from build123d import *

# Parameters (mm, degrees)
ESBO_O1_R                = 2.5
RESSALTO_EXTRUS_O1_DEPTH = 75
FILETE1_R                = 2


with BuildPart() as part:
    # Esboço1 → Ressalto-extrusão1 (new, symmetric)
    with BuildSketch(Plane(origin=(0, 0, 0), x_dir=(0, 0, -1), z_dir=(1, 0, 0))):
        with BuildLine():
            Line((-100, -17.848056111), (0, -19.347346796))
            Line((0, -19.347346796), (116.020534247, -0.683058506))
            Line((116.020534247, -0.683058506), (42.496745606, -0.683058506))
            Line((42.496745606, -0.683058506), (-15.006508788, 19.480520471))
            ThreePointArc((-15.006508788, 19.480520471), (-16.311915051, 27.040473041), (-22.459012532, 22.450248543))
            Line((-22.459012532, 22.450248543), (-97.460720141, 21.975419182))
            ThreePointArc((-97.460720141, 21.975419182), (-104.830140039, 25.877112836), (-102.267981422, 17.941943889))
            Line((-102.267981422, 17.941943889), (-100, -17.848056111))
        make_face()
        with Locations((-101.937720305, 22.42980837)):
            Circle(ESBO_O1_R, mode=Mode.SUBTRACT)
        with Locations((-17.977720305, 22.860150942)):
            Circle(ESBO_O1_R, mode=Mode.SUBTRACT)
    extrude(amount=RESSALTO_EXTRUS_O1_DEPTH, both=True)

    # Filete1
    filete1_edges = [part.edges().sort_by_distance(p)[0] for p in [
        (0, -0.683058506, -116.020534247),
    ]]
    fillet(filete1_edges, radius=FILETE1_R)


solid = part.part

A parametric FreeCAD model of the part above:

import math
import FreeCAD as App
import Part
import Sketcher
from FreeCAD import Vector


def edges_at(feature, points):
    """Names of the edges that pass closest to the given points."""
    edges = feature.Shape.Edges
    near = lambda p: min(range(len(edges)), key=lambda i: edges[i].distToShape(Part.Vertex(*p))[0])
    return sorted({f"Edge{near(p) + 1}" for p in points})

doc = App.newDocument("Part")
body = doc.addObject("PartDesign::Body", "Body")

# Sketch on YZ plane
sketch1 = doc.addObject("Sketcher::SketchObject", "Sketch")
body.addObject(sketch1)
sketch1.AttachmentSupport = (doc.YZ_Plane, [""])
sketch1.MapMode = "FlatFace"
sketch1.addGeometry(Part.LineSegment(Vector(-17.848056, 100, 0), Vector(-19.347347, 0, 0)), False)
sketch1.addGeometry(Part.LineSegment(Vector(-19.347347, 0, 0), Vector(-0.683059, -116.020534, 0)), False)
sketch1.addGeometry(Part.LineSegment(Vector(-0.683059, -116.020534, 0), Vector(-0.683059, -42.496746, 0)), False)
sketch1.addGeometry(Part.LineSegment(Vector(-0.683059, -42.496746, 0), Vector(19.48052, 15.006509, 0)), False)
sketch1.addGeometry(Part.ArcOfCircle(Part.Circle(Vector(22.860151, 17.97772, 0), Vector(0, 0, 1), 4.5), math.radians(-138.679591), math.radians(95.226284)), False)
sketch1.addGeometry(Part.LineSegment(Vector(22.450249, 22.459013, 0), Vector(21.975419, 97.46072, 0)), False)
sketch1.addGeometry(Part.ArcOfCircle(Part.Circle(Vector(22.429808, 101.93772, 0), Vector(0, 0, 1), 4.5), math.radians(-95.79534), math.radians(175.791201)), False)
sketch1.addGeometry(Part.LineSegment(Vector(17.941944, 102.267981, 0), Vector(-17.848056, 100, 0)), False)
sketch1.addGeometry(Part.Circle(Vector(22.429808, 101.93772, 0), Vector(0, 0, 1), 2.5), False)
sketch1.addGeometry(Part.Circle(Vector(22.860151, 17.97772, 0), Vector(0, 0, 1), 2.5), False)
sketch1.addConstraint(Sketcher.Constraint("Coincident", 0, 2, 1, 1))
sketch1.addConstraint(Sketcher.Constraint("Coincident", 1, 2, 2, 1))
sketch1.addConstraint(Sketcher.Constraint("Coincident", 2, 2, 3, 1))
sketch1.addConstraint(Sketcher.Constraint("Coincident", 3, 2, 4, 1))
sketch1.addConstraint(Sketcher.Constraint("Coincident", 4, 2, 5, 1))
sketch1.addConstraint(Sketcher.Constraint("Coincident", 5, 2, 6, 1))
sketch1.addConstraint(Sketcher.Constraint("Coincident", 6, 2, 7, 1))
sketch1.addConstraint(Sketcher.Constraint("Coincident", 7, 2, 0, 1))
sketch1.addConstraint(Sketcher.Constraint("Vertical", 2))
sketch1.addConstraint(Sketcher.Constraint("Coincident", 8, 3, 6, 3))
sketch1.addConstraint(Sketcher.Constraint("Coincident", 9, 3, 4, 3))
sketch1.addConstraint(Sketcher.Constraint("Equal", 4, 6))
sketch1.addConstraint(Sketcher.Constraint("Equal", 8, 9))
sketch1.addConstraint(Sketcher.Constraint("PointOnObject", 0, 2, -1))
sketch1.addConstraint(Sketcher.Constraint("Diameter", 8, 5.0))
sketch1.addConstraint(Sketcher.Constraint("Radius", 4, 4.5))
sketch1.addConstraint(Sketcher.Constraint("DistanceY", -1, 1, 7, 2, 100.0))
sketch1.addConstraint(Sketcher.Constraint("DistanceY", 4, 3, 6, 3, 83.96))
sketch1.addConstraint(Sketcher.Constraint("DistanceX", 7, 2, 6, 2, 35.79))
sketch1.addConstraint(Sketcher.Constraint("DistanceY", 5, 2, 6, 3, 4.477))
sketch1.addConstraint(Sketcher.Constraint("DistanceY", 2, 1, 2, 2, 73.523789))
sketch1.addConstraint(Sketcher.Constraint("Distance", 0, 100.011239))
sketch1.addConstraint(Sketcher.Constraint("Distance", 5, 75.003211))
sketch1.addConstraint(Sketcher.Constraint("Distance", 7, 35.861788))
sketch1.addConstraint(Sketcher.Constraint("DistanceX", -1, 1, 4, 3, 22.860151))
sketch1.addConstraint(Sketcher.Constraint("DistanceY", -1, 1, 4, 3, 17.97772))
sketch1.addConstraint(Sketcher.Constraint("DistanceX", -1, 1, 6, 3, 22.429808))
sketch1.addConstraint(Sketcher.Constraint("DistanceX", 1, 2, -1, 1, 0.683059))
sketch1.addConstraint(Sketcher.Constraint("DistanceX", -1, 1, 3, 2, 19.48052))
sketch1.addConstraint(Sketcher.Constraint("DistanceY", 2, 2, 4, 2, 64.955758))
pad1 = doc.addObject("PartDesign::Pad", "Pad")
body.addObject(pad1)
pad1.Profile = sketch1
pad1.Length = 150
pad1.Midplane = True
doc.recompute()

fillet = doc.addObject("PartDesign::Fillet", "Fillet")
body.addObject(fillet)
fillet.Base = (pad1, edges_at(pad1, [(0, -0.683, -116.021)]))
fillet.Radius = 2

doc.recompute()
